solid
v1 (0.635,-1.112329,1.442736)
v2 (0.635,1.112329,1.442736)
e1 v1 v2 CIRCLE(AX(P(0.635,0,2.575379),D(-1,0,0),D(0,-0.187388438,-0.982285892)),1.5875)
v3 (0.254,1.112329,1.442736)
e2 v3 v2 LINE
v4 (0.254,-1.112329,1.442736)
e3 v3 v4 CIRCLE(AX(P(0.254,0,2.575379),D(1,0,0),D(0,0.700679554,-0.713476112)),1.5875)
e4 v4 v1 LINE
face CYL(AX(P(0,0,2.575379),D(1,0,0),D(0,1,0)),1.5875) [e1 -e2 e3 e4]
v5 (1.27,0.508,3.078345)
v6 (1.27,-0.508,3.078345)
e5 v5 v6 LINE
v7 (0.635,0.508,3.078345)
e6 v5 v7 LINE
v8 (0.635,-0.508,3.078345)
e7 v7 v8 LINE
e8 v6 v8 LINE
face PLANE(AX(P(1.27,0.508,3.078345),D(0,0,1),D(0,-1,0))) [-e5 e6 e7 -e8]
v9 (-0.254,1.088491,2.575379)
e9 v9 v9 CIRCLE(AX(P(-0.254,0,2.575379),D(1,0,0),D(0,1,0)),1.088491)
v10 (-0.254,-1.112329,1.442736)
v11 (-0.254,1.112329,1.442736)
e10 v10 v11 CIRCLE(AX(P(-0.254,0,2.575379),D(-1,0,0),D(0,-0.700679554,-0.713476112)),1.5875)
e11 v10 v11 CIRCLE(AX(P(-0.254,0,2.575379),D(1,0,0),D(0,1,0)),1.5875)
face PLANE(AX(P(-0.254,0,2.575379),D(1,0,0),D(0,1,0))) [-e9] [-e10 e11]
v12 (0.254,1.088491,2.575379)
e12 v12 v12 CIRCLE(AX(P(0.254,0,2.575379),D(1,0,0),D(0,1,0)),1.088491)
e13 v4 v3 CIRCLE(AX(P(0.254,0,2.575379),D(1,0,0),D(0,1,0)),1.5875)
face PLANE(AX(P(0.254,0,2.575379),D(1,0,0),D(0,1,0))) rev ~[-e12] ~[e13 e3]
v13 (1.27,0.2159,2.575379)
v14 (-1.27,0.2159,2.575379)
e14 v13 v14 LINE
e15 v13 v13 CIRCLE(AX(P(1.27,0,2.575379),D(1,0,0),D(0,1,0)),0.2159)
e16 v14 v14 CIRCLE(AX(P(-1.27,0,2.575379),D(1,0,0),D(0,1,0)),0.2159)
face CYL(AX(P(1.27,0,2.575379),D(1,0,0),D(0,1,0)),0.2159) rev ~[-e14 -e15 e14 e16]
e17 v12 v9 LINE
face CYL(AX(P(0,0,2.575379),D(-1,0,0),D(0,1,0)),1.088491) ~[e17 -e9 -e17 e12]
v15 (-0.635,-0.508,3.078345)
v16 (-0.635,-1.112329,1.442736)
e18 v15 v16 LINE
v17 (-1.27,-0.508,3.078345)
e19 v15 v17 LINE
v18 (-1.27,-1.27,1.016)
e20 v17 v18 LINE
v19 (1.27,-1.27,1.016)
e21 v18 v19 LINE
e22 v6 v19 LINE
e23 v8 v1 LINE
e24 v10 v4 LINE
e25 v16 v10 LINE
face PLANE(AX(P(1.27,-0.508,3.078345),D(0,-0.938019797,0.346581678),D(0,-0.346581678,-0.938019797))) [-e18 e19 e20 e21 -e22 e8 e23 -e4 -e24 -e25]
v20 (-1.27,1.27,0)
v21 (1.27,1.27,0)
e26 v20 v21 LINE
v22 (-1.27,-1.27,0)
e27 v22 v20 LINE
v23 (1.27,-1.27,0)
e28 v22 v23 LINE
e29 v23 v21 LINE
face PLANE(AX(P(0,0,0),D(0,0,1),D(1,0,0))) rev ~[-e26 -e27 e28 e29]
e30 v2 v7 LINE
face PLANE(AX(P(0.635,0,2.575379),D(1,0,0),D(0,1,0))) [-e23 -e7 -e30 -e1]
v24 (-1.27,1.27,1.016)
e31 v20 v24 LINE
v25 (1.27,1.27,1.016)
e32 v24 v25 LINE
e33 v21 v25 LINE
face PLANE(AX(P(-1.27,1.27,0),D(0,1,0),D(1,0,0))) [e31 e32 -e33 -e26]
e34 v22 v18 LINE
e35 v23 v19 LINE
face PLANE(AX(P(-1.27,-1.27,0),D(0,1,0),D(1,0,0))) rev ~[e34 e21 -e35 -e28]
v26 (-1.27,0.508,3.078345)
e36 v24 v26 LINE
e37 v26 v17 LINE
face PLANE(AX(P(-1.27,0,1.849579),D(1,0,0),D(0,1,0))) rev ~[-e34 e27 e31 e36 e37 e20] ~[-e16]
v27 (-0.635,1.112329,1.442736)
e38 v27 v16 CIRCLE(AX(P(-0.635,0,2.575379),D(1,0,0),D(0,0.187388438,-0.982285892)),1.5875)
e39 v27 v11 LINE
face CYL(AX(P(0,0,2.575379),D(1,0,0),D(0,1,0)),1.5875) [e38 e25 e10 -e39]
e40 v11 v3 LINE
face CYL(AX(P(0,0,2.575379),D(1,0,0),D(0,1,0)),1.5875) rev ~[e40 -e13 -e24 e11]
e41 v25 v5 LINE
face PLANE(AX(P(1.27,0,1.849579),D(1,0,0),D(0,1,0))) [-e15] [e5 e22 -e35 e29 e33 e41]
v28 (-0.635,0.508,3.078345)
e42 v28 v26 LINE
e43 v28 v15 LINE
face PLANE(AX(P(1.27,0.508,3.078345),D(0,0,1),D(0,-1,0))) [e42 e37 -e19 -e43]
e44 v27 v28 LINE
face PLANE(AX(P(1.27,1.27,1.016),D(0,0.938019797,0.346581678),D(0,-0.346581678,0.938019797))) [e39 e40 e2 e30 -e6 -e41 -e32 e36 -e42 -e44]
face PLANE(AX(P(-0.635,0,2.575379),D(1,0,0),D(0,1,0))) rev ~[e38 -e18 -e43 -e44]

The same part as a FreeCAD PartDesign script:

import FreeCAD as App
import Part
import Sketcher
Q = App.Units.Quantity

doc = App.newDocument("Part")
body = doc.addObject("PartDesign::Body", "Body")

# Sketch on XY plane
sketch1 = body.newObject("Sketcher::SketchObject", "Sketch")
sketch1.AttachmentSupport = (doc.getObject("XY_Plane"), [""])
sketch1.MapMode = "FlatFace"
sketch1.addGeometry(Part.LineSegment(App.Vector(-1.3, 1.3, 0), App.Vector(-1.3, -1.3, 0)), False)
sketch1.addGeometry(Part.LineSegment(App.Vector(-1.3, -1.3, 0), App.Vector(1.3, -1.3, 0)), False)
sketch1.addGeometry(Part.LineSegment(App.Vector(1.3, -1.3, 0), App.Vector(1.3, 1.3, 0)), False)
sketch1.addGeometry(Part.LineSegment(App.Vector(1.3, 1.3, 0), App.Vector(-1.3, 1.3, 0)), False)
sketch1.addConstraint(Sketcher.Constraint("Coincident", 0, 2, 1, 1))
sketch1.addConstraint(Sketcher.Constraint("Coincident", 1, 2, 2, 1))
sketch1.addConstraint(Sketcher.Constraint("Coincident", 2, 2, 3, 1))
sketch1.addConstraint(Sketcher.Constraint("Coincident", 3, 2, 0, 1))
sketch1.addConstraint(Sketcher.Constraint("Vertical", 0))
sketch1.addConstraint(Sketcher.Constraint("Horizontal", 1))
sketch1.addConstraint(Sketcher.Constraint("Vertical", 2))
sketch1.addConstraint(Sketcher.Constraint("Horizontal", 3))
sketch1.addConstraint(Sketcher.Constraint("Symmetric", 0, 2, 2, 2, -1, 1))
sketch1.addConstraint(Sketcher.Constraint("Equal", 3, 0))
sketch1.addConstraint(Sketcher.Constraint("DistanceX", 1, 1, 1, 2, Q("0.1 in")))
pad1 = body.newObject("PartDesign::Pad", "Pad")
pad1.Profile = sketch1
pad1.Length = Q("0.04 in")

# Sketch on YZ plane
sketch2 = body.newObject("Sketcher::SketchObject", "Sketch001")
sketch2.AttachmentSupport = (doc.getObject("YZ_Plane"), [""])
sketch2.MapMode = "FlatFace"
sketch2.addGeometry(Part.Circle(App.Vector(0, 2.6, 0), App.Vector(0, 0, 1), 1.6), False)
sketch2.addConstraint(Sketcher.Constraint("PointOnObject", 0, 3, -2))
sketch2.addConstraint(Sketcher.Constraint("Diameter", 0, Q("0.125 in")))
sketch2.addConstraint(Sketcher.Constraint("DistanceY", -1, 1, 0, 3, Q("2.575379 mm")))
pad2 = body.newObject("PartDesign::Pad", "Pad001")
pad2.Profile = sketch2
pad2.Length = Q("0.05 in")
pad2.Midplane = True

# Sketch on YZ plane
sketch3 = body.newObject("Sketcher::SketchObject", "Sketch002")
sketch3.AttachmentSupport = (doc.getObject("YZ_Plane"), [""])
sketch3.MapMode = "FlatFace"
sketch3.AttachmentOffset = App.Placement(App.Vector(0, 0, 0.05 * 25.4), App.Rotation())
sketch3.addGeometry(Part.LineSegment(App.Vector(-0.5, 3.1, 0), App.Vector(-1.3, 1, 0)), False)
sketch3.addGeometry(Part.LineSegment(App.Vector(-1.3, 1, 0), App.Vector(1.3, 1, 0)), False)
sketch3.addGeometry(Part.LineSegment(App.Vector(1.3, 1, 0), App.Vector(0.5, 3.1, 0)), False)
sketch3.addGeometry(Part.LineSegment(App.Vector(0.5, 3.1, 0), App.Vector(-0.5, 3.1, 0)), False)
sketch3.addConstraint(Sketcher.Constraint("Coincident", 0, 2, 1, 1))
sketch3.addConstraint(Sketcher.Constraint("Coincident", 1, 2, 2, 1))
sketch3.addConstraint(Sketcher.Constraint("Coincident", 2, 2, 3, 1))
sketch3.addConstraint(Sketcher.Constraint("Coincident", 3, 2, 0, 1))
sketch3.addConstraint(Sketcher.Constraint("Horizontal", 1))
sketch3.addConstraint(Sketcher.Constraint("Horizontal", 3))
sketch3.addConstraint(Sketcher.Constraint("Equal", 0, 2))
sketch3.addConstraint(Sketcher.Constraint("DistanceX", 1, 1, 1, 2, Q("0.1 in")))
sketch3.addConstraint(Sketcher.Constraint("DistanceX", 3, 2, 3, 1, Q("0.04 in")))
sketch3.addConstraint(Sketcher.Constraint("DistanceX", 0, 2, -1, 1, Q("0.05 in")))
sketch3.addConstraint(Sketcher.Constraint("DistanceY", -1, 1, 0, 2, Q("0.04 in")))
sketch3.addConstraint(Sketcher.Constraint("Distance", 0, Q("2.198616 mm")))
pad3 = body.newObject("PartDesign::Pad", "Pad002")
pad3.Profile = sketch3
pad3.Length = Q("0.1 in")
pad3.Reversed = True

# Sketch on YZ plane
sketch4 = body.newObject("Sketcher::SketchObject", "Sketch003")
sketch4.AttachmentSupport = (doc.getObject("YZ_Plane"), [""])
sketch4.MapMode = "FlatFace"
sketch4.addGeometry(Part.Circle(App.Vector(0, 2.6, 0), App.Vector(0, 0, 1), 1.6), False)
sketch4.addGeometry(Part.Circle(App.Vector(0, 2.6, 0), App.Vector(0, 0, 1), 1.1), False)
sketch4.addConstraint(Sketcher.Constraint("Coincident", 1, 3, 0, 3))
sketch4.addConstraint(Sketcher.Constraint("PointOnObject", 0, 3, -2))
sketch4.addConstraint(Sketcher.Constraint("Diameter", 0, Q("0.125 in")))
sketch4.addConstraint(Sketcher.Constraint("Diameter", 1, Q("2.176982 mm")))
sketch4.addConstraint(Sketcher.Constraint("DistanceY", -1, 1, 0, 3, Q("2.575379 mm")))
pocket1 = body.newObject("PartDesign::Pocket", "Pocket")
pocket1.Profile = sketch4
pocket1.Length = Q("0.02 in")
pocket1.Midplane = True

# Sketch on YZ plane
sketch5 = body.newObject("Sketcher::SketchObject", "Sketch004")
sketch5.AttachmentSupport = (doc.getObject("YZ_Plane"), [""])
sketch5.MapMode = "FlatFace"
sketch5.AttachmentOffset = App.Placement(App.Vector(0, 0, 0.05 * 25.4), App.Rotation())
sketch5.addGeometry(Part.Circle(App.Vector(0, 2.58, 0), App.Vector(0, 0, 1), 0.22), False)
sketch5.addConstraint(Sketcher.Constraint("PointOnObject", 0, 3, -2))
sketch5.addConstraint(Sketcher.Constraint("Diameter", 0, Q("0.017 in")))
sketch5.addConstraint(Sketcher.Constraint("DistanceY", -1, 1, 0, 3, Q("2.575379 mm")))
pocket2 = body.newObject("PartDesign::Pocket", "Pocket001")
pocket2.Profile = sketch5
pocket2.Length = Q("1 in")

doc.recompute()
